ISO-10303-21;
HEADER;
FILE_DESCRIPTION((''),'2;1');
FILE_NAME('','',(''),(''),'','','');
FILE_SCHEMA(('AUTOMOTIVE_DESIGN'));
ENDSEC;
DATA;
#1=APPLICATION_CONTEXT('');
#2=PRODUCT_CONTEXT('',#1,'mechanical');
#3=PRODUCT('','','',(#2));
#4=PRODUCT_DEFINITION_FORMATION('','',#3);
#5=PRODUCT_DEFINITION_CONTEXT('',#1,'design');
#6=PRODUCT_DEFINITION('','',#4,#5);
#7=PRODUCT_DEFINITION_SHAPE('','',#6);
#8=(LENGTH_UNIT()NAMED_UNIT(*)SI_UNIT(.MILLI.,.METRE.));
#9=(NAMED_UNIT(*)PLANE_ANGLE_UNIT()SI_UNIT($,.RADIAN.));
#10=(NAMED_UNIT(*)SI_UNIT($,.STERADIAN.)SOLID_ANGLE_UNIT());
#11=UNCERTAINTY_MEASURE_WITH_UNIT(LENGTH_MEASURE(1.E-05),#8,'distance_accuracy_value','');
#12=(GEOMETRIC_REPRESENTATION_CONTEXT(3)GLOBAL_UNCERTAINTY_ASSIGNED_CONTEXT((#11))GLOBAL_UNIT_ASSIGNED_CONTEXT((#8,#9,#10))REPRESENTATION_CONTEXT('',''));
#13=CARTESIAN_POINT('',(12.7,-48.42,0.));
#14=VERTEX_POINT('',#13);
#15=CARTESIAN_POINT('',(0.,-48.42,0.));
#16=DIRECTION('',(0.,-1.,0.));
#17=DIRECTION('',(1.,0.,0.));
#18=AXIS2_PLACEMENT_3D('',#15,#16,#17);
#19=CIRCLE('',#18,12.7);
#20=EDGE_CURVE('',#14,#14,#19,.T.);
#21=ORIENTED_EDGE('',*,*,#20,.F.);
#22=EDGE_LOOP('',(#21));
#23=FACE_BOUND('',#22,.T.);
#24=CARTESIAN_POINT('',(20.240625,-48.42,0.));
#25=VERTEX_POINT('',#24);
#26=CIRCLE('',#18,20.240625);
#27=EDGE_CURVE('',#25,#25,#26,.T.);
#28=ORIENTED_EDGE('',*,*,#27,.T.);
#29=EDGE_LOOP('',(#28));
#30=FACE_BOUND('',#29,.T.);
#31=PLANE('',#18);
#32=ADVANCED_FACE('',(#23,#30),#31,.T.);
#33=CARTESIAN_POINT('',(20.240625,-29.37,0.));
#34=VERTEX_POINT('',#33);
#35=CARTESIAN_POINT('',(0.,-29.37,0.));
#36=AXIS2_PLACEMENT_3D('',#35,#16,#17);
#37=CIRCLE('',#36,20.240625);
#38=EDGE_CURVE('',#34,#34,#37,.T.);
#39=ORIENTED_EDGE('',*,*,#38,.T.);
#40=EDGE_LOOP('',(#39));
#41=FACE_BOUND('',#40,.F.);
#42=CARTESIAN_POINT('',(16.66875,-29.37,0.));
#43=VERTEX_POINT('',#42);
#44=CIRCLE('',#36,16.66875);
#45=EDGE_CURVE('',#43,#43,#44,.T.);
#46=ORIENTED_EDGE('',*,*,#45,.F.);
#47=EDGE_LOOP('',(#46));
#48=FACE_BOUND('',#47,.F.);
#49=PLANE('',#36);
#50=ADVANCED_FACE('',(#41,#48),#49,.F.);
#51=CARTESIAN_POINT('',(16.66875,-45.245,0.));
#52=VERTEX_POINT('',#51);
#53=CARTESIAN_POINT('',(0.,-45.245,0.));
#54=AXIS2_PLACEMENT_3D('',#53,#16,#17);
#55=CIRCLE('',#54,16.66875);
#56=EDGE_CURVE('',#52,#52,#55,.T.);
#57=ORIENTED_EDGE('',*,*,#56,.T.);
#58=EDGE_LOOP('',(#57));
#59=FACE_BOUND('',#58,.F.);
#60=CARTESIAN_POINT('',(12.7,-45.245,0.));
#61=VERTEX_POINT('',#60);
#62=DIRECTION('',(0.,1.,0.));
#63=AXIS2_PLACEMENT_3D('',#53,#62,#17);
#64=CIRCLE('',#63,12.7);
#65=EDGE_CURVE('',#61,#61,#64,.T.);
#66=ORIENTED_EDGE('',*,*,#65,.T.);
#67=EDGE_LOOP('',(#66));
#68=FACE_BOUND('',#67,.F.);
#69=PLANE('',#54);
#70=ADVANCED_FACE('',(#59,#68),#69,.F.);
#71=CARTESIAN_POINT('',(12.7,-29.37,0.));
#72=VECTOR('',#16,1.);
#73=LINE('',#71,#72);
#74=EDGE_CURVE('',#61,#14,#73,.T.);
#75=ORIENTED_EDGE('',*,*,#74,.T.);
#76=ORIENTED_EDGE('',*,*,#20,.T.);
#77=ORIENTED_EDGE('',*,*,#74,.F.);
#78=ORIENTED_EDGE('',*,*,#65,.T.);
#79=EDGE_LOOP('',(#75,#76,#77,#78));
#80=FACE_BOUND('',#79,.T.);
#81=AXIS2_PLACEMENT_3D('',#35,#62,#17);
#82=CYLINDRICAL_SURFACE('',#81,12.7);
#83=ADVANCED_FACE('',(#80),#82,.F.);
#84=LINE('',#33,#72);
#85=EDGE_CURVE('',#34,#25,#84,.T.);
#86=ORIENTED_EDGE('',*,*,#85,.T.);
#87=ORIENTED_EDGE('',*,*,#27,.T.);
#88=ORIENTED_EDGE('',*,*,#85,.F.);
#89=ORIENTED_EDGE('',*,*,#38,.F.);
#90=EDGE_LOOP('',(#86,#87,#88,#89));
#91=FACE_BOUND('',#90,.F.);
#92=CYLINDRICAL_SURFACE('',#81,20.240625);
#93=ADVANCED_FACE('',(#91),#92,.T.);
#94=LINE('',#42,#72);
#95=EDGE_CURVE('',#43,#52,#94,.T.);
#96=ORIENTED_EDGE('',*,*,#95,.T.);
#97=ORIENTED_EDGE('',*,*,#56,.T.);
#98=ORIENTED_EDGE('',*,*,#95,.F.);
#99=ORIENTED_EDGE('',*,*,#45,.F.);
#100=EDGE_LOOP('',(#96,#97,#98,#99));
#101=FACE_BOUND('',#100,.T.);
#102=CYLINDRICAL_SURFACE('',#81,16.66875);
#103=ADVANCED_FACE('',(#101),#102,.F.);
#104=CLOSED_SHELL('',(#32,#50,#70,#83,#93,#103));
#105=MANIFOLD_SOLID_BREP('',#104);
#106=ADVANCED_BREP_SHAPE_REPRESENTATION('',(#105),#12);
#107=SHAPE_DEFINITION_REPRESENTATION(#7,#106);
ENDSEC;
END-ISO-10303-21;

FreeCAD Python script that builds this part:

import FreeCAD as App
import Part
import Sketcher
from FreeCAD import Vector
Q = App.Units.Quantity

doc = App.newDocument("Part")
params = doc.addObject("Spreadsheet::Sheet", "Params")
for row, (alias, value) in enumerate([
    ("sketch1_diameter", "1.3125 in"),
    ("pad1_length", "0.625 in"),
    ("sketch2_diameter", "1 in"),
    ("sketch2_diameter2", "1.59375 in"),
    ("pad2_length", "0.75 in"),
], start=1):
    params.set(f"A{row}", alias)
    params.set(f"B{row}", "=" + value)
    params.setAlias(f"B{row}", alias)

body = doc.addObject("PartDesign::Body", "Body")

# Sketch on XZ plane
sketch1 = doc.addObject("Sketcher::SketchObject", "Sketch")
body.addObject(sketch1)
sketch1.AttachmentSupport = (doc.XZ_Plane, [""])
sketch1.MapMode = "FlatFace"
sketch1.addGeometry(Part.Circle(Vector(0, 0, 0), Vector(0, 0, 1), 17), False)
sketch1.addConstraint([
    Sketcher.Constraint("Coincident", 0, 3, -1, 1),
    Sketcher.Constraint("Diameter", 0, Q("1.3125 in")),
])
sketch1.setExpression("Constraints[1]", "Params.sketch1_diameter")
pad1 = doc.addObject("PartDesign::Pad", "Pad")
body.addObject(pad1)
pad1.Profile = sketch1
pad1.setExpression("Length", "Params.pad1_length")
body2 = doc.addObject("PartDesign::Body", "Body001")

# Sketch on XZ plane
sketch2 = doc.addObject("Sketcher::SketchObject", "Sketch001")
body2.addObject(sketch2)
sketch2.AttachmentSupport = (doc.getObject("XZ_Plane001"), [""])
sketch2.MapMode = "FlatFace"
sketch2.addGeometry([
    Part.Circle(Vector(0, 0, 0), Vector(0, 0, 1), 20),
    Part.Circle(Vector(0, 0, 0), Vector(0, 0, 1), 13),
], False)
sketch2.addConstraint([
    Sketcher.Constraint("Coincident", 0, 3, -1, 1),
    Sketcher.Constraint("Coincident", 1, 3, -1, 1),
    Sketcher.Constraint("Diameter", 1, Q("1 in")),
    Sketcher.Constraint("Diameter", 0, Q("1.59375 in")),
])
sketch2.setExpression("Constraints[2]", "Params.sketch2_diameter")
sketch2.setExpression("Constraints[3]", "Params.sketch2_diameter2")
pad2 = doc.addObject("PartDesign::Pad", "Pad001")
body2.addObject(pad2)
pad2.Profile = sketch2
pad2.setExpression("Length", "Params.pad2_length")
doc.recompute()

boolean = doc.addObject("PartDesign::Boolean", "Boolean")
body2.addObject(boolean)
boolean.Type = "Cut"
boolean.addObjects([body])
body3 = doc.addObject("PartDesign::Body", "Body002")
doc.recompute()

body2.Placement = App.Placement(Vector(0, -29.37, 0), App.Rotation(Vector(0, 0, 1), 0))
boolean2 = doc.addObject("PartDesign::Boolean", "Boolean001")
body3.addObject(boolean2)
boolean2.Type = "Fuse"
boolean2.addObjects([body2])

doc.recompute()
